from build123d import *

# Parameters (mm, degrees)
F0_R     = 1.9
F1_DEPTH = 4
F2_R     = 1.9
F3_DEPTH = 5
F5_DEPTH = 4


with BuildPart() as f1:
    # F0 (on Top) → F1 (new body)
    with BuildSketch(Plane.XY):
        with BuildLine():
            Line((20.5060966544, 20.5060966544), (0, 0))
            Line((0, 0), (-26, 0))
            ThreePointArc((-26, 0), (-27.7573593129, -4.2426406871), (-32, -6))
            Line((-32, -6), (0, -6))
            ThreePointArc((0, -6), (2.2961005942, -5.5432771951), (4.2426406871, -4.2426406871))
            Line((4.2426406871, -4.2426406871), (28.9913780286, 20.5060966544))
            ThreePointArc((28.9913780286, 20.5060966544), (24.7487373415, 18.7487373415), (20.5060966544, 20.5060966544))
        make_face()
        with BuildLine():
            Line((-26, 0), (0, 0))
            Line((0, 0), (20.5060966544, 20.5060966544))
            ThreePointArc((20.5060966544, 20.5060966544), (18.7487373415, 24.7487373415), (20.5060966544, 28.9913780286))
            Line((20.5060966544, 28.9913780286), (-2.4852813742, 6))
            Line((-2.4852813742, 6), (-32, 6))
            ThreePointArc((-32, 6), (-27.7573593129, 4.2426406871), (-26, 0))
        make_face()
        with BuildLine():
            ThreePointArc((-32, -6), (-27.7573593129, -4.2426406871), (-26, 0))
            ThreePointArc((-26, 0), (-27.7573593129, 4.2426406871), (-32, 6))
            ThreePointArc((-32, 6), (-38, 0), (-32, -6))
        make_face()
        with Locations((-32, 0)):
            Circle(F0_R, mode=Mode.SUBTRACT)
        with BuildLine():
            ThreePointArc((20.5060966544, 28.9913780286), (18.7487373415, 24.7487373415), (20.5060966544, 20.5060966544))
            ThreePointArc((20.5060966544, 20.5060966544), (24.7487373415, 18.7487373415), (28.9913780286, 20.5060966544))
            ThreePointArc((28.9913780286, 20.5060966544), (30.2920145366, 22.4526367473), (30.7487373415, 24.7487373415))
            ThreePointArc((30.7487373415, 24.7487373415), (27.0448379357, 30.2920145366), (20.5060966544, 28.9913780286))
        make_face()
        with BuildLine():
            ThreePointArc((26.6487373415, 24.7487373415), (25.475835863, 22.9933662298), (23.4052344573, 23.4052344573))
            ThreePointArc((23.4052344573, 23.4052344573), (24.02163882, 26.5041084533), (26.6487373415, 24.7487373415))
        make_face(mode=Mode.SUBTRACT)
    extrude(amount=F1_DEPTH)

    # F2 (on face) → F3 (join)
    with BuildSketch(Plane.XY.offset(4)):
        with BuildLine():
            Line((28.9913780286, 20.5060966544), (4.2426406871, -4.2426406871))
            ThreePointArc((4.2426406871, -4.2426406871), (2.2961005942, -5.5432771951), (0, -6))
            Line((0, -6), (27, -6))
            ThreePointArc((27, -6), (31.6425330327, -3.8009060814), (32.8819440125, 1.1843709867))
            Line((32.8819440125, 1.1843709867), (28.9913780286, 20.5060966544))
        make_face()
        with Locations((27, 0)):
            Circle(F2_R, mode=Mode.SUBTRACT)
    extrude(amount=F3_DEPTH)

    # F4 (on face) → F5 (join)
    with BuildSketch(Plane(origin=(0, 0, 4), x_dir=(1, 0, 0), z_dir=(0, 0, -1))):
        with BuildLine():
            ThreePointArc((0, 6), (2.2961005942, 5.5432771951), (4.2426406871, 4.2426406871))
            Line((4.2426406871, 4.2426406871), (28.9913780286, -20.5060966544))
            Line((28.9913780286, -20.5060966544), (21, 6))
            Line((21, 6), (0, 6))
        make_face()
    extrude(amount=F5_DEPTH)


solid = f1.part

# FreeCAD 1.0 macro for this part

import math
import FreeCAD as App
import Part
import Sketcher

V = App.Vector
Q = App.Units.Quantity

doc = App.newDocument("Part")
params = doc.addObject("Spreadsheet::Sheet", "Params")
for row, (alias, value) in enumerate([
    ("sketch1_radius", "6 mm"),
    ("sketch1_diameter", "3.8 mm"),
    ("sketch1_width", "32 mm"),
    ("sketch1_length", "35 mm"),
    ("pad1_length", "4 mm"),
    ("sketch2_radius", "6 mm"),
    ("sketch2_diameter", "3.8 mm"),
    ("sketch2_width", "27 mm"),
    ("sketch2_length", "35 mm"),
    ("pad2_length", "5 mm"),
    ("sketch3_radius", "6 mm"),
    ("sketch3_width", "21 mm"),
    ("sketch3_length", "35 mm"),
    ("pad3_length", "4 mm"),
], start=1):
    params.set(f"A{row}", alias)
    params.set(f"B{row}", "=" + value)
    params.setAlias(f"B{row}", alias)

body = doc.addObject("PartDesign::Body", "Body")
body.AllowCompound = True

sketch1 = body.newObject("Sketcher::SketchObject", "Sketch")
sketch1.AttachmentSupport = (doc.getObject("XY_Plane"), [""])
sketch1.MapMode = "FlatFace"
sketch1.addGeometry([
    Part.LineSegment(V(-32, -6, 0), V(0, -6, 0)),
    Part.ArcOfCircle(Part.Circle(V(0, 0, 0), V(0, 0, 1), 6), math.radians(-90), math.radians(-45)),
    Part.LineSegment(V(4.2, -4.2, 0), V(29, 20.5, 0)),
    Part.ArcOfCircle(Part.Circle(V(24.7, 24.7, 0), V(0, 0, 1), 6), math.radians(-45), math.radians(0)),
    Part.ArcOfCircle(Part.Circle(V(24.7, 24.7, 0), V(0, 0, 1), 6), math.radians(0), math.radians(135)),
    Part.LineSegment(V(20.5, 29, 0), V(-2.5, 6, 0)),
    Part.LineSegment(V(-2.5, 6, 0), V(-32, 6, 0)),
    Part.ArcOfCircle(Part.Circle(V(-32, 0, 0), V(0, 0, 1), 6), math.radians(90), math.radians(270)),
    Part.Circle(V(-32, 0, 0), V(0, 0, 1), 1.9),
    Part.ArcOfCircle(Part.Circle(V(24.7, 24.7, 0), V(0, 0, 1), 1.9), math.radians(0), math.radians(225)),
    Part.ArcOfCircle(Part.Circle(V(24.7, 24.7, 0), V(0, 0, 1), 1.9), math.radians(-135), math.radians(0)),
], False)
sketch1.addConstraint([
    Sketcher.Constraint("Tangent", 0, 2, 1, 1),
    Sketcher.Constraint("Tangent", 1, 2, 2, 1),
    Sketcher.Constraint("Tangent", 2, 2, 3, 1),
    Sketcher.Constraint("Tangent", 3, 2, 4, 1),
    Sketcher.Constraint("Tangent", 4, 2, 5, 1),
    Sketcher.Constraint("Coincident", 5, 2, 6, 1),
    Sketcher.Constraint("Tangent", 6, 2, 7, 1),
    Sketcher.Constraint("Tangent", 7, 2, 0, 1),
    Sketcher.Constraint("Tangent", 9, 1, 10, 2),
    Sketcher.Constraint("Coincident", 10, 1, 9, 2),
    Sketcher.Constraint("Horizontal", 0),
    Sketcher.Constraint("Horizontal", 6),
    Sketcher.Constraint("Coincident", 1, 3, -1, 1),
    Sketcher.Constraint("Coincident", 8, 3, 7, 3),
    Sketcher.Constraint("Coincident", 9, 3, 3, 3),
    Sketcher.Constraint("Equal", 1, 3),
    Sketcher.Constraint("Equal", 3, 4),
    Sketcher.Constraint("Equal", 4, 7),
    Sketcher.Constraint("Equal", 8, 9),
    Sketcher.Constraint("Parallel", 2, 5),
    Sketcher.Constraint("Horizontal", 10, 3, 3, 2),
    Sketcher.Constraint("Horizontal", 3, 2, 9, 1),
    Sketcher.Constraint("Radius", 1, 6.0),
    Sketcher.Constraint("Diameter", 8, 3.8),
    Sketcher.Constraint("DistanceX", 0, 1, 0, 2, 32.0),
    Sketcher.Constraint("Angle", 2, Q("45 deg")),
    Sketcher.Constraint("Distance", 2, 35.0),
    Sketcher.Constraint("DistanceX", -1, 1, 10, 1, 23.405234),
])
sketch1.setExpression("Constraints[22]", "Params.sketch1_radius")
sketch1.setExpression("Constraints[23]", "Params.sketch1_diameter")
sketch1.setExpression("Constraints[24]", "Params.sketch1_width")
sketch1.setExpression("Constraints[26]", "Params.sketch1_length")
pad1 = body.newObject("PartDesign::Pad", "Pad")
pad1.Profile = sketch1
pad1.setExpression("Length", "Params.pad1_length")

sketch2 = body.newObject("Sketcher::SketchObject", "Sketch001")
sketch2.AttachmentSupport = (doc.getObject("XY_Plane"), [""])
sketch2.MapMode = "FlatFace"
sketch2.AttachmentOffset = App.Placement(V(0, 0, 4), App.Rotation())
sketch2.addGeometry([
    Part.LineSegment(V(29, 20.5, 0), V(4.2, -4.2, 0)),
    Part.ArcOfCircle(Part.Circle(V(0, 0, 0), V(0, 0, 1), 6), math.radians(-90), math.radians(-45)),
    Part.LineSegment(V(0, -6, 0), V(27, -6, 0)),
    Part.ArcOfCircle(Part.Circle(V(27, 0, 0), V(0, 0, 1), 6), math.radians(-90), math.radians(11)),
    Part.LineSegment(V(32.9, 1.2, 0), V(29, 20.5, 0)),
    Part.Circle(V(27, 0, 0), V(0, 0, 1), 1.9),
], False)
sketch2.addConstraint([
    Sketcher.Constraint("Tangent", 0, 2, 1, 2),
    Sketcher.Constraint("Tangent", 1, 1, 2, 1),
    Sketcher.Constraint("Tangent", 2, 2, 3, 1),
    Sketcher.Constraint("Tangent", 3, 2, 4, 1),
    Sketcher.Constraint("Coincident", 4, 2, 0, 1),
    Sketcher.Constraint("Horizontal", 2),
    Sketcher.Constraint("Coincident", 1, 3, -1, 1),
    Sketcher.Constraint("Coincident", 5, 3, 3, 3),
    Sketcher.Constraint("Equal", 1, 3),
    Sketcher.Constraint("Radius", 1, 6.0),
    Sketcher.Constraint("Diameter", 5, 3.8),
    Sketcher.Constraint("DistanceX", 2, 1, 2, 2, 27.0),
    Sketcher.Constraint("Angle", 0, Q("-135 deg")),
    Sketcher.Constraint("Distance", 0, 35.0),
])
sketch2.setExpression("Constraints[9]", "Params.sketch2_radius")
sketch2.setExpression("Constraints[10]", "Params.sketch2_diameter")
sketch2.setExpression("Constraints[11]", "Params.sketch2_width")
sketch2.setExpression("Constraints[13]", "Params.sketch2_length")
pad2 = body.newObject("PartDesign::Pad", "Pad001")
pad2.Profile = sketch2
pad2.setExpression("Length", "Params.pad2_length")

sketch3 = body.newObject("Sketcher::SketchObject", "Sketch002")
sketch3.AttachmentSupport = (doc.getObject("XY_Plane"), [""])
sketch3.MapMode = "FlatFace"
sketch3.AttachmentOffset = App.Placement(V(0, 0, 4), App.Rotation())
sketch3.addGeometry([
    Part.ArcOfCircle(Part.Circle(V(0, 0, 0), V(0, 0, 1), 6), math.radians(-90), math.radians(-45)),
    Part.LineSegment(V(4.2, -4.2, 0), V(29, 20.5, 0)),
    Part.LineSegment(V(29, 20.5, 0), V(21, -6, 0)),
    Part.LineSegment(V(21, -6, 0), V(0, -6, 0)),
], False)
sketch3.addConstraint([
    Sketcher.Constraint("Tangent", 0, 2, 1, 1),
    Sketcher.Constraint("Coincident", 1, 2, 2, 1),
    Sketcher.Constraint("Coincident", 2, 2, 3, 1),
    Sketcher.Constraint("Tangent", 3, 2, 0, 1),
    Sketcher.Constraint("Horizontal", 3),
    Sketcher.Constraint("Coincident", 0, 3, -1, 1),
    Sketcher.Constraint("Radius", 0, 6.0),
    Sketcher.Constraint("DistanceX", 3, 2, 3, 1, 21.0),
    Sketcher.Constraint("Angle", 1, Q("45 deg")),
    Sketcher.Constraint("Distance", 1, 35.0),
])
sketch3.setExpression("Constraints[6]", "Params.sketch3_radius")
sketch3.setExpression("Constraints[7]", "Params.sketch3_width")
sketch3.setExpression("Constraints[9]", "Params.sketch3_length")
pad3 = body.newObject("PartDesign::Pad", "Pad002")
pad3.Profile = sketch3
pad3.setExpression("Length", "Params.pad3_length")
pad3.Reversed = True

doc.recompute()
